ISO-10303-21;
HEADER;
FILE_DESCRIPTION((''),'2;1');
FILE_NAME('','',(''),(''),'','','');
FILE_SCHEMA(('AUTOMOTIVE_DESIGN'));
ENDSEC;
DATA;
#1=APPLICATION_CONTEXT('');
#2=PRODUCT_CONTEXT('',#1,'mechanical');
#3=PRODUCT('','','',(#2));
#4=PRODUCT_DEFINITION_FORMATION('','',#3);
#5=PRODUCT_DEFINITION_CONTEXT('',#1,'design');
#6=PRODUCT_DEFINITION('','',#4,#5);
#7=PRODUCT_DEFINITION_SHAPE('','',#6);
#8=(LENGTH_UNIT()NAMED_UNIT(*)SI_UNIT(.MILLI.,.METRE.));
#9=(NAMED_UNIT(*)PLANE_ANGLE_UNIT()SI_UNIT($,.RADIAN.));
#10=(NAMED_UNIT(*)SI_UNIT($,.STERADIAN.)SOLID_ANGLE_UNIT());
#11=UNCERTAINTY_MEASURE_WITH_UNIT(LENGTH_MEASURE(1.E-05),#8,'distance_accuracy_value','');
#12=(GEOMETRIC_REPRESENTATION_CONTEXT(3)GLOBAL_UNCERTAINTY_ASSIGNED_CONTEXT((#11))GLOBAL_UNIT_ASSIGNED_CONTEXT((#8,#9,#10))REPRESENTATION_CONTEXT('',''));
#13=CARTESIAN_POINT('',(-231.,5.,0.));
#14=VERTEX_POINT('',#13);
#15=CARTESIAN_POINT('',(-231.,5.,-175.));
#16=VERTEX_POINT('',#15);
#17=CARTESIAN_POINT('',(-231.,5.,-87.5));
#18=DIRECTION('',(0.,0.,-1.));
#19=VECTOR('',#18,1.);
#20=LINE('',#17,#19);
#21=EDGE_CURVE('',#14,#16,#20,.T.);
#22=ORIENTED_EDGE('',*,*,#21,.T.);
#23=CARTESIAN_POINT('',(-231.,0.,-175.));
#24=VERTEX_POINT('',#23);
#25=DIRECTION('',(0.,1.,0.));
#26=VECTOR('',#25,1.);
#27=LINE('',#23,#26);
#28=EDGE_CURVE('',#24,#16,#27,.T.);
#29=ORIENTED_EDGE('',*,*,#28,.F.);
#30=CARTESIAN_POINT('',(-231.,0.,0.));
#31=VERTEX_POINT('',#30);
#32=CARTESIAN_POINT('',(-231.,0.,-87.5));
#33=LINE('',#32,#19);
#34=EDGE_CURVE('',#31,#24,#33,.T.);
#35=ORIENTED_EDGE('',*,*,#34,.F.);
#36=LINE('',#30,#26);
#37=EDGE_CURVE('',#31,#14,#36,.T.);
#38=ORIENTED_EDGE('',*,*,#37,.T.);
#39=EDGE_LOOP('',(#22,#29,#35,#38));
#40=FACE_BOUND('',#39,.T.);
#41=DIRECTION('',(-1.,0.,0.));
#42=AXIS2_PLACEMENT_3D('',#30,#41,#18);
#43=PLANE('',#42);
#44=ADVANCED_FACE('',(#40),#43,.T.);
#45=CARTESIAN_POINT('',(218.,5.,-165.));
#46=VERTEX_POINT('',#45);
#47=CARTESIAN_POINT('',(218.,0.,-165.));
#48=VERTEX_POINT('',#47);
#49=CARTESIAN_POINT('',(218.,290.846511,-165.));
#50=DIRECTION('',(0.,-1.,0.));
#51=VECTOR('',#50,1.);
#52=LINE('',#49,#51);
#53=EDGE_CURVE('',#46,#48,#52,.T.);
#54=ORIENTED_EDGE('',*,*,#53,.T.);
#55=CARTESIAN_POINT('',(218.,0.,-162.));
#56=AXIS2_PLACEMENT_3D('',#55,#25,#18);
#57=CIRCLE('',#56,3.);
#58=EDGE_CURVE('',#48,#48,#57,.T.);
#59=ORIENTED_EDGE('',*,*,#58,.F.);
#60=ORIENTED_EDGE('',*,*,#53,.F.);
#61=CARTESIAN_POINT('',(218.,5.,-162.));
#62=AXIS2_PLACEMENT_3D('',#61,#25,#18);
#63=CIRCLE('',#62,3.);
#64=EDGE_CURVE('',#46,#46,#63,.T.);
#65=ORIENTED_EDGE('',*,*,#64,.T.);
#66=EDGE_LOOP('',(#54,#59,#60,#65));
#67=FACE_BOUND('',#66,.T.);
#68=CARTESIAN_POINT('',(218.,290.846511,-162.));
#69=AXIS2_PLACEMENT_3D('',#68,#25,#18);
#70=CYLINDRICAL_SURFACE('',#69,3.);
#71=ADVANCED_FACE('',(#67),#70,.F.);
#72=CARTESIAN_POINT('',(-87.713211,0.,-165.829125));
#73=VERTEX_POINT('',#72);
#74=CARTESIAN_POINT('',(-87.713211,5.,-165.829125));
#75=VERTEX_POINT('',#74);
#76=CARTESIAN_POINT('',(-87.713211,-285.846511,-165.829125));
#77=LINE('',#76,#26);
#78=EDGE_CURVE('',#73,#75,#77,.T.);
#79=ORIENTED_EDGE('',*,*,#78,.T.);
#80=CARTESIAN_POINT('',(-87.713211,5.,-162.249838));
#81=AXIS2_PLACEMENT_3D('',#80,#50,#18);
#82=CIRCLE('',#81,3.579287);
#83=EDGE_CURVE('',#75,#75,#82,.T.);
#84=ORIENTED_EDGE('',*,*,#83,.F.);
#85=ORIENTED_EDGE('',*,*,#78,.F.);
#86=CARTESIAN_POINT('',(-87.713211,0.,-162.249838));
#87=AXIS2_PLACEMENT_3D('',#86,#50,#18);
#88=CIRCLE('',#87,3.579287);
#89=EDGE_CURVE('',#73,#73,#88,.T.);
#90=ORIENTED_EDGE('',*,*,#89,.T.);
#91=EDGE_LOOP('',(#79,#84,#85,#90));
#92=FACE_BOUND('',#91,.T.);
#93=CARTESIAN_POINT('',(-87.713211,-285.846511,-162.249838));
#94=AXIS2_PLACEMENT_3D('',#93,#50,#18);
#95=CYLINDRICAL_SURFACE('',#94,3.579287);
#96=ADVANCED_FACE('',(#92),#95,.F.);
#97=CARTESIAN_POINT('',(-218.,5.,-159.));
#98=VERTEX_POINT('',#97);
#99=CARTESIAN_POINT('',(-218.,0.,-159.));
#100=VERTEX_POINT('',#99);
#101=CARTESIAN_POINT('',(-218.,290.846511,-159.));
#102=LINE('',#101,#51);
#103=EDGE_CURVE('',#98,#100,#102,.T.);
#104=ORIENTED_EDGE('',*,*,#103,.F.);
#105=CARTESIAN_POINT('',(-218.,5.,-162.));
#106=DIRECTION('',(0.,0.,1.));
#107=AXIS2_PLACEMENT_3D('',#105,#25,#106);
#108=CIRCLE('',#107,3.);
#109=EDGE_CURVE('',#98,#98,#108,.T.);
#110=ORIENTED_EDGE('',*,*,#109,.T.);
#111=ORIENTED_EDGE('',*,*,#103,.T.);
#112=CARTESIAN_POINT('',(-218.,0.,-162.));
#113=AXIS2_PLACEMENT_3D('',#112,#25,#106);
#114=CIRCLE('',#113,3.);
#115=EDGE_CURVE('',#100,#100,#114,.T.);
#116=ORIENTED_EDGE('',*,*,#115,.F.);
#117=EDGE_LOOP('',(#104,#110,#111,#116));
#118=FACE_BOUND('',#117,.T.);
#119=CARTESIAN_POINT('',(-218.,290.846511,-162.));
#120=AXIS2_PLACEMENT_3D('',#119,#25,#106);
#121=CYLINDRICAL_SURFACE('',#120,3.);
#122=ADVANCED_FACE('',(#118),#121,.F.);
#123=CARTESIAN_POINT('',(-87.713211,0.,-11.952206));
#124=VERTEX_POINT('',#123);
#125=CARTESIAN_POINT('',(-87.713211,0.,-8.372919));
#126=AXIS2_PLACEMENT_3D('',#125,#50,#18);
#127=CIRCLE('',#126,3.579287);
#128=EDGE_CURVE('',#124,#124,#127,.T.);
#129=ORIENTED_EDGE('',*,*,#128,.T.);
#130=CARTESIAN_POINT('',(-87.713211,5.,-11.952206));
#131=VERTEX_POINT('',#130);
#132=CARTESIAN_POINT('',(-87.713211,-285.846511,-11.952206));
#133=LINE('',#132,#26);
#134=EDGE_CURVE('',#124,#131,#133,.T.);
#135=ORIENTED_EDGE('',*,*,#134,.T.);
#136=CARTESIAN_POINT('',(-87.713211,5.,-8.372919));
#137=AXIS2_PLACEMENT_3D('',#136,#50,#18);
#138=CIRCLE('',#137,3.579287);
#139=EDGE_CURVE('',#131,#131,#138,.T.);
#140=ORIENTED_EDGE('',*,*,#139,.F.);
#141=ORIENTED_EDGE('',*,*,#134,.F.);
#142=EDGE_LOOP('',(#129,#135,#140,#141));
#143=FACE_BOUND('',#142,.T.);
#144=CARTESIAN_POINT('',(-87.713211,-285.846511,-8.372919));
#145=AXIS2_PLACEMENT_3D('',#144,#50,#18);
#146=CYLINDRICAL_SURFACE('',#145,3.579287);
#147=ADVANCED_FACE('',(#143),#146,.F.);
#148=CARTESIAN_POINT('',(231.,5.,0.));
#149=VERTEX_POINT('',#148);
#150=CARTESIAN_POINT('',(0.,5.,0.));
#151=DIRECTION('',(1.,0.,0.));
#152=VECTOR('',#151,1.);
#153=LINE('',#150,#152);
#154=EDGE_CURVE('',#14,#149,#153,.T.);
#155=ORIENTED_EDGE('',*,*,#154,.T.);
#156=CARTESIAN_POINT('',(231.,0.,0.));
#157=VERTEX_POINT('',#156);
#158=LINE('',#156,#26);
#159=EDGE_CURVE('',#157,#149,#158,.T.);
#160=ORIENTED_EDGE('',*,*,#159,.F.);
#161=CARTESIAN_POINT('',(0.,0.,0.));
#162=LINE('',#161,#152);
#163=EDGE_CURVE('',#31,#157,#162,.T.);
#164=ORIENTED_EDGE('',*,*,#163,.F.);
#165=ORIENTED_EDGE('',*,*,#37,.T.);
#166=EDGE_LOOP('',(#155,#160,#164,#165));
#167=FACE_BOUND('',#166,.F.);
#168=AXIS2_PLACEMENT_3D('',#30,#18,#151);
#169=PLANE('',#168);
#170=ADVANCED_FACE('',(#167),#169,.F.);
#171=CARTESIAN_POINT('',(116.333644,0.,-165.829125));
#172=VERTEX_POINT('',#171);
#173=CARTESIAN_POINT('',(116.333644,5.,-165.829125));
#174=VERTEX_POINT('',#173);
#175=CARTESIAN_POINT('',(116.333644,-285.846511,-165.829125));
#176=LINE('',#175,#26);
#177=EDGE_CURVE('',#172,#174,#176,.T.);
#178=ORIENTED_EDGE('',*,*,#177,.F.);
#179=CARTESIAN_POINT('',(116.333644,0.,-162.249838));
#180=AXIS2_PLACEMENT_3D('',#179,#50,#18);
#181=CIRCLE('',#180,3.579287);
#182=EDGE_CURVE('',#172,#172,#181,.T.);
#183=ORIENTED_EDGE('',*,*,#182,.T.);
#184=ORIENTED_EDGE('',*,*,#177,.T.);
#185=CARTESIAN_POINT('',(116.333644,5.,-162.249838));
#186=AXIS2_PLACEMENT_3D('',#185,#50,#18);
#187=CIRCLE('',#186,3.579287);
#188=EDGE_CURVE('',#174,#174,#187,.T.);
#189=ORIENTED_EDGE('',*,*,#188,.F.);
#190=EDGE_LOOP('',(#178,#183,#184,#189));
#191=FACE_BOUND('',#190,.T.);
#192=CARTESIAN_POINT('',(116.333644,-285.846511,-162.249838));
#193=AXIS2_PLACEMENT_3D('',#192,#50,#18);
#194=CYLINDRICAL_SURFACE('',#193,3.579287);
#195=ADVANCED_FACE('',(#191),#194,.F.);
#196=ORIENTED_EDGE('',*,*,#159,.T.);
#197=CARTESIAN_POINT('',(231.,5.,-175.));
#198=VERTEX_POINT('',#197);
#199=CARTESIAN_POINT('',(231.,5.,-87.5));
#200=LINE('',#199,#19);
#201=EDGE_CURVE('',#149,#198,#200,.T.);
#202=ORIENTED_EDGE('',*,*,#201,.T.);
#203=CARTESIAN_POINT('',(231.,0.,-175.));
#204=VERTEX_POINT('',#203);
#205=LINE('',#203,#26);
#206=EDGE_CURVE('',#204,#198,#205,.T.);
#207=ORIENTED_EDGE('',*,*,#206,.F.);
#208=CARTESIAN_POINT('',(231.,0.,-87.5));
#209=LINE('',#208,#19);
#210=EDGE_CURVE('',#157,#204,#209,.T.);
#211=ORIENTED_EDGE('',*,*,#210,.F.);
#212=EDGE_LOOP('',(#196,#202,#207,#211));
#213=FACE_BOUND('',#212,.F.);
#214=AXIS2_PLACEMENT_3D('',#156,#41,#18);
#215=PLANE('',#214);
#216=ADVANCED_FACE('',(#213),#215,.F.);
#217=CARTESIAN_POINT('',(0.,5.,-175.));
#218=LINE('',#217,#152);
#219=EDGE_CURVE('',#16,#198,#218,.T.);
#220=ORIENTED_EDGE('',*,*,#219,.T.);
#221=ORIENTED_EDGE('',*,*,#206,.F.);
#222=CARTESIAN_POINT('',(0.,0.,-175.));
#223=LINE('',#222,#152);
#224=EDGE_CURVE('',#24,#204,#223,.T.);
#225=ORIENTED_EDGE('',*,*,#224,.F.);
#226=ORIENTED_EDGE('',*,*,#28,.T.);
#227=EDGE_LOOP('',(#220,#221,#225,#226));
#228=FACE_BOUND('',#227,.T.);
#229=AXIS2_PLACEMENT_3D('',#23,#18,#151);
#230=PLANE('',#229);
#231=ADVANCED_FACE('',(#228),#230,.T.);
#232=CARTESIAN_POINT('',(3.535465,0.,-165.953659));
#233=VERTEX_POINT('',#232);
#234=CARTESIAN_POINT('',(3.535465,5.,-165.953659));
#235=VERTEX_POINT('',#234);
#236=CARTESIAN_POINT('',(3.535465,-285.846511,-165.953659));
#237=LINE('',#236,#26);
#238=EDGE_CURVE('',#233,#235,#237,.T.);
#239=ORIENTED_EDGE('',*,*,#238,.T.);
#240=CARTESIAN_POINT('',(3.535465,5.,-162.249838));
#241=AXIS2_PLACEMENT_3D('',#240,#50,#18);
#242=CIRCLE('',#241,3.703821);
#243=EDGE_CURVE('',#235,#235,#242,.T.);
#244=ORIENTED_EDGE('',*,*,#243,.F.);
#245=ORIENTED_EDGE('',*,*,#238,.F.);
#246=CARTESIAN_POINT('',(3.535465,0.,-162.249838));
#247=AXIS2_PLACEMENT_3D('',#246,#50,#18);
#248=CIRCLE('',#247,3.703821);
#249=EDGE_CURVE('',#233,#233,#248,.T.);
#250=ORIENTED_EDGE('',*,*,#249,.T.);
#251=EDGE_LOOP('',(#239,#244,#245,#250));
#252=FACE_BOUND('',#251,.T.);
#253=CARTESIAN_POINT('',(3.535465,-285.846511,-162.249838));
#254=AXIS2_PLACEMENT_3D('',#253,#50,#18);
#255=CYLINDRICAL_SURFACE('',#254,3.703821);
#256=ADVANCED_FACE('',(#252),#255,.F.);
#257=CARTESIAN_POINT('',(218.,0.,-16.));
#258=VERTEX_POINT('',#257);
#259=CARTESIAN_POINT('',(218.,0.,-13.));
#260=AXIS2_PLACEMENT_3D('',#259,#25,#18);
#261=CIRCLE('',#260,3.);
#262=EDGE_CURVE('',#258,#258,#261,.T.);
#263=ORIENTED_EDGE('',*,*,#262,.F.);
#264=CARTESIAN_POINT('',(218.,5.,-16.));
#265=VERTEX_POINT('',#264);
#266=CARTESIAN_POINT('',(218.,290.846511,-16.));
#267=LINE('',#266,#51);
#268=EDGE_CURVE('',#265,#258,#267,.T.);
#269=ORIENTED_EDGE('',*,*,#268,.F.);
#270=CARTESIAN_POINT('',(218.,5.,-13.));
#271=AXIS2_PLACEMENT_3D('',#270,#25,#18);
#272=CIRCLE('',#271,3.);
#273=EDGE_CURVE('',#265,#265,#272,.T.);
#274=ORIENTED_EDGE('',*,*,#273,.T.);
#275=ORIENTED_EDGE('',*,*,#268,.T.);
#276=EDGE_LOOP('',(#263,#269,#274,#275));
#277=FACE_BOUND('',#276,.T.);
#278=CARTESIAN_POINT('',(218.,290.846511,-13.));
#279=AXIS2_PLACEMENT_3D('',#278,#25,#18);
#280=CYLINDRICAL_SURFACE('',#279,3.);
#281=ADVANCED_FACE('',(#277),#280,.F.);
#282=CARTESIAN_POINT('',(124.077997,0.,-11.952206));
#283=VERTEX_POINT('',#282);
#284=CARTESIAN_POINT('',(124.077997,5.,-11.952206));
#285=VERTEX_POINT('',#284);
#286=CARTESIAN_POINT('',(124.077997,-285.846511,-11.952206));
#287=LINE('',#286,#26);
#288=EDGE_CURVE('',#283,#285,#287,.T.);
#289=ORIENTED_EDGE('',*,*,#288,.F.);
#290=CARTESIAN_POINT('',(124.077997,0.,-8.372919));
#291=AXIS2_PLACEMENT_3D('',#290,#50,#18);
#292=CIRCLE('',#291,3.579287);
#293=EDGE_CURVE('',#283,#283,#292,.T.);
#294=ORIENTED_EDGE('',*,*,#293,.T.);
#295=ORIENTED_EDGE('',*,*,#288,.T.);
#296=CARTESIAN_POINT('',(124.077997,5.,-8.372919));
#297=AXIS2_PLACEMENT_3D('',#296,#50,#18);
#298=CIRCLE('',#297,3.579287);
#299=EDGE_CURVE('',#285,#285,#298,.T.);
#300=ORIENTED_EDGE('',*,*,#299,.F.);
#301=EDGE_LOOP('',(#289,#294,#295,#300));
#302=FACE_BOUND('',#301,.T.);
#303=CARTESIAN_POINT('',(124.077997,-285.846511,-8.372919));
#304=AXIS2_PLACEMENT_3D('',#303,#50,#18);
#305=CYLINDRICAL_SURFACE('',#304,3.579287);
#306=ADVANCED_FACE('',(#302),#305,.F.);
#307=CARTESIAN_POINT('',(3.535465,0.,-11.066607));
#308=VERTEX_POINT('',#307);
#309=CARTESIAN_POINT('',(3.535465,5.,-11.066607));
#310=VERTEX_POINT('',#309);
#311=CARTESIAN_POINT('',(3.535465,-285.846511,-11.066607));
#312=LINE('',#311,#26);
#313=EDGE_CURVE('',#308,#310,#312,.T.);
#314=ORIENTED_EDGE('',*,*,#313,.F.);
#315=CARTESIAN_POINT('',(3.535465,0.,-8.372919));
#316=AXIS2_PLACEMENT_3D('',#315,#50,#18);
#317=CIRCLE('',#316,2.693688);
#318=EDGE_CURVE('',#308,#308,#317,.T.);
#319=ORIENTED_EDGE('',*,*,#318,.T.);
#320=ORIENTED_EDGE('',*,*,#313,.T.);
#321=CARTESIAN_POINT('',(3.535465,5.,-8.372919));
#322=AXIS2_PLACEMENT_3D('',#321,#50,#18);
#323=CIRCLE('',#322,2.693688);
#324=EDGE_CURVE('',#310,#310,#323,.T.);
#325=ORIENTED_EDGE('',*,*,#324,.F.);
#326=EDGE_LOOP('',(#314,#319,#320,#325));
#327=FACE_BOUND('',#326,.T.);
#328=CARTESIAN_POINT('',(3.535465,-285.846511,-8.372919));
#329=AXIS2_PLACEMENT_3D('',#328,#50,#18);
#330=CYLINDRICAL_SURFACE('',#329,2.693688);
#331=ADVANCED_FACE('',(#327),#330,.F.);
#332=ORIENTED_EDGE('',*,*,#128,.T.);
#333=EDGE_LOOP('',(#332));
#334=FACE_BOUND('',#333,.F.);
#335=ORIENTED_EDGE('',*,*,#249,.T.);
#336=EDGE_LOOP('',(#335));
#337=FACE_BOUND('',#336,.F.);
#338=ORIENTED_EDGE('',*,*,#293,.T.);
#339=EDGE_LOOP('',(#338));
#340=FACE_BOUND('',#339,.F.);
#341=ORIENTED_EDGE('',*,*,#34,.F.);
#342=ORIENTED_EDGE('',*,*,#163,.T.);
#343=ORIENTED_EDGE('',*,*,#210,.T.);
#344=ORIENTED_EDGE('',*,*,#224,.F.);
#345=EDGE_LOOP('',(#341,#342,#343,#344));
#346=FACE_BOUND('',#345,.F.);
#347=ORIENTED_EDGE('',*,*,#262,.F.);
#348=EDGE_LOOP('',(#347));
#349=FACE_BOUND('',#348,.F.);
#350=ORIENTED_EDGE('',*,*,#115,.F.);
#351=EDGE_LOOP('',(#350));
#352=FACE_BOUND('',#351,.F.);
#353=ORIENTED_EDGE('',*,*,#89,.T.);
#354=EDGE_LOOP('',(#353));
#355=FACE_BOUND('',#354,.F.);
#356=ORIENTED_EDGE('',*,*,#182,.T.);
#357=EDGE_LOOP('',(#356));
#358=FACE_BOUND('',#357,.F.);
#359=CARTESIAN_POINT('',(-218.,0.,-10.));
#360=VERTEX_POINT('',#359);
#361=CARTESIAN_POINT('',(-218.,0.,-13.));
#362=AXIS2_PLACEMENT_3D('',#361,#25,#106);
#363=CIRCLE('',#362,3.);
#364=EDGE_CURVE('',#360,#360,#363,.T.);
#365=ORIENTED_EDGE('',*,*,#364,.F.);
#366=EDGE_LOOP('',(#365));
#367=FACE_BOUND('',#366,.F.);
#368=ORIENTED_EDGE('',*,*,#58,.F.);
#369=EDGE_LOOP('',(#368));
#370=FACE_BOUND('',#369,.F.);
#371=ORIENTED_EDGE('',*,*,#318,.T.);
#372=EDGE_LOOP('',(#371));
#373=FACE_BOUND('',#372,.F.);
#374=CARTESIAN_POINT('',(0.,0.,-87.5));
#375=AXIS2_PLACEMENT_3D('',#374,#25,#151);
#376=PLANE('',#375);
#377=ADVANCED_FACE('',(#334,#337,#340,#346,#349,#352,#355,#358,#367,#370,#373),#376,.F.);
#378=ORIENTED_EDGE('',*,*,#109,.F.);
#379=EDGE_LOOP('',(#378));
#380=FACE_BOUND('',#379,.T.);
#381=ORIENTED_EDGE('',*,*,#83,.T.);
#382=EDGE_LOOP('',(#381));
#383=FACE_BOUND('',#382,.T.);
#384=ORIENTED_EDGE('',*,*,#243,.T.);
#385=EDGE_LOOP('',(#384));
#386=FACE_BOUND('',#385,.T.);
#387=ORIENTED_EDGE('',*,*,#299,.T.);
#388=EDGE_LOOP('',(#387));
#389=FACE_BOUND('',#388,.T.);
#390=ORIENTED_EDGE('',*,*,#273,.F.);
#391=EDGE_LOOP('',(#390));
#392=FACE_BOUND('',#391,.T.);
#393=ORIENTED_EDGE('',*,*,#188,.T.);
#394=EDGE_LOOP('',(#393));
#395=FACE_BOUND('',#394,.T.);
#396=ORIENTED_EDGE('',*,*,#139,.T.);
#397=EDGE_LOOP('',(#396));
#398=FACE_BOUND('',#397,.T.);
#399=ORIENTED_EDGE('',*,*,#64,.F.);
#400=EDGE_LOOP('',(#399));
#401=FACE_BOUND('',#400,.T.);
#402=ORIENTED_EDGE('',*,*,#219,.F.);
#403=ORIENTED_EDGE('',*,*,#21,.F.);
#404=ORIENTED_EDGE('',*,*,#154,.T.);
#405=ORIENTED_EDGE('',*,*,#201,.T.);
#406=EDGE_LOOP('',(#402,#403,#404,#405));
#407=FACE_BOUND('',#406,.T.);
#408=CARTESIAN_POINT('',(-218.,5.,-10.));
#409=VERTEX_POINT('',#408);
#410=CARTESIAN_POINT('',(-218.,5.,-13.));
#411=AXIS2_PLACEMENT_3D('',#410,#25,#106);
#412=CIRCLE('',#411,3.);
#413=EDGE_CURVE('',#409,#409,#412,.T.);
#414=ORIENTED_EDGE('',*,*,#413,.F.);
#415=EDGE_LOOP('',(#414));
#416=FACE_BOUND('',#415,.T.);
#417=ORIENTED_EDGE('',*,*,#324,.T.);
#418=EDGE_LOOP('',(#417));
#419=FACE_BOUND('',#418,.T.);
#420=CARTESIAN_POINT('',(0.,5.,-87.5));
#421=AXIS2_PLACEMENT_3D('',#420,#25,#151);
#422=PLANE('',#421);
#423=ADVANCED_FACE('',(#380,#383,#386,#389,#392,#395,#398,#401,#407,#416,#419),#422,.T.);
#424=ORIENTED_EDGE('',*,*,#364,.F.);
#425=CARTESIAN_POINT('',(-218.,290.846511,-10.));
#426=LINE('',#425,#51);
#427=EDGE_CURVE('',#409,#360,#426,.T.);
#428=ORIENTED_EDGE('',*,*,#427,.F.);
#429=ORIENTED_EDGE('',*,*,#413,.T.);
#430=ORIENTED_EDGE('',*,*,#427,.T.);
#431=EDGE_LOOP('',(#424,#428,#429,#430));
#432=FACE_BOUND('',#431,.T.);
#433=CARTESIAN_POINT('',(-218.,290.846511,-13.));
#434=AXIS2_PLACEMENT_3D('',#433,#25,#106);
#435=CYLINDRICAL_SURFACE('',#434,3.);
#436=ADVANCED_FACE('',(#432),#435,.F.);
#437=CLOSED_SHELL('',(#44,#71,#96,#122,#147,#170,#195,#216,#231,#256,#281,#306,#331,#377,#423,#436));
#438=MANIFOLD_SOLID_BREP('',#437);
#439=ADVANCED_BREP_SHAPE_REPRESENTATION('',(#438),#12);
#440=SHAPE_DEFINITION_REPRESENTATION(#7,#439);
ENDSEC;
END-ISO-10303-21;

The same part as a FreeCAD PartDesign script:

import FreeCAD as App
import Part
import Sketcher

V = App.Vector

doc = App.newDocument("Part")
body = doc.addObject("PartDesign::Body", "Body")

# Sketch on XZ plane
sketch1 = body.newObject("Sketcher::SketchObject", "Sketch")
sketch1.AttachmentSupport = (doc.getObject("XZ_Plane"), [""])
sketch1.MapMode = "FlatFace"
sketch1.addGeometry(Part.LineSegment(V(-231, -175, 0), V(-231, 0, 0)), False)
sketch1.addGeometry(Part.LineSegment(V(-231, 0, 0), V(231, 0, 0)), False)
sketch1.addGeometry(Part.LineSegment(V(231, 0, 0), V(231, -175, 0)), False)
sketch1.addGeometry(Part.LineSegment(V(231, -175, 0), V(-231, -175, 0)), False)
sketch1.addConstraint(Sketcher.Constraint("Coincident", 0, 2, 1, 1))
sketch1.addConstraint(Sketcher.Constraint("Coincident", 1, 2, 2, 1))
sketch1.addConstraint(Sketcher.Constraint("Coincident", 2, 2, 3, 1))
sketch1.addConstraint(Sketcher.Constraint("Coincident", 3, 2, 0, 1))
sketch1.addConstraint(Sketcher.Constraint("Vertical", 0))
sketch1.addConstraint(Sketcher.Constraint("Horizontal", 1))
sketch1.addConstraint(Sketcher.Constraint("Vertical", 2))
sketch1.addConstraint(Sketcher.Constraint("Horizontal", 3))
sketch1.addConstraint(Sketcher.Constraint("Symmetric", 0, 2, 1, 2, -1, 1))
sketch1.addConstraint(Sketcher.Constraint("DistanceX", 1, 1, 1, 2, 462.0))
sketch1.addConstraint(Sketcher.Constraint("DistanceY", 0, 1, 0, 2, 175.0))
pad1 = body.newObject("PartDesign::Pad", "Pad")
pad1.Profile = sketch1
pad1.Length = 5
pad1.Reversed = True

# Sketch on XZ plane
sketch2 = body.newObject("Sketcher::SketchObject", "Sketch001")
sketch2.AttachmentSupport = (doc.getObject("XZ_Plane"), [""])
sketch2.MapMode = "FlatFace"
sketch2.addGeometry(Part.Circle(V(218, -162, 0), V(0, 0, 1), 3), False)
sketch2.addGeometry(Part.Circle(V(218, -13, 0), V(0, 0, 1), 3), False)
sketch2.addGeometry(Part.Circle(V(-218, -13, 0), V(0, 0, 1), 3), False)
sketch2.addGeometry(Part.Circle(V(-218, -162, 0), V(0, 0, 1), 3), False)
sketch2.addConstraint(Sketcher.Constraint("Equal", 0, 1))
sketch2.addConstraint(Sketcher.Constraint("Equal", 1, 2))
sketch2.addConstraint(Sketcher.Constraint("Equal", 2, 3))
sketch2.addConstraint(Sketcher.Constraint("Symmetric", 1, 3, 2, 3, -2))
sketch2.addConstraint(Sketcher.Constraint("Symmetric", 0, 3, 3, 3, -2))
sketch2.addConstraint(Sketcher.Constraint("Vertical", 0, 3, 1, 3))
sketch2.addConstraint(Sketcher.Constraint("Diameter", 0, 6.0))
sketch2.addConstraint(Sketcher.Constraint("DistanceX", -1, 1, 0, 3, 218.0))
sketch2.addConstraint(Sketcher.Constraint("DistanceY", 0, 3, -1, 1, 162.0))
sketch2.addConstraint(Sketcher.Constraint("DistanceY", 1, 3, -1, 1, 13.0))
pocket1 = body.newObject("PartDesign::Pocket", "Pocket")
pocket1.Profile = sketch2
pocket1.Type = "ThroughAll"
pocket1.Midplane = True

# Sketch on XZ plane
sketch3 = body.newObject("Sketcher::SketchObject", "Sketch002")
sketch3.AttachmentSupport = (doc.getObject("XZ_Plane"), [""])
sketch3.MapMode = "FlatFace"
sketch3.AttachmentOffset = App.Placement(V(0, 0, -5), App.Rotation())
sketch3.addGeometry(Part.Circle(V(-87.7, -162.2, 0), V(0, 0, 1), 3.6), False)
sketch3.addGeometry(Part.Circle(V(-87.7, -8.4, 0), V(0, 0, 1), 3.6), False)
sketch3.addGeometry(Part.Circle(V(116.3, -162.2, 0), V(0, 0, 1), 3.6), False)
sketch3.addGeometry(Part.Circle(V(124.1, -8.4, 0), V(0, 0, 1), 3.6), False)
sketch3.addGeometry(Part.Circle(V(3.5, -162.2, 0), V(0, 0, 1), 3.7), False)
sketch3.addGeometry(Part.Circle(V(3.5, -8.4, 0), V(0, 0, 1), 2.7), False)
sketch3.addConstraint(Sketcher.Constraint("Equal", 0, 1))
sketch3.addConstraint(Sketcher.Constraint("Equal", 1, 2))
sketch3.addConstraint(Sketcher.Constraint("Equal", 2, 3))
sketch3.addConstraint(Sketcher.Constraint("Horizontal", 0, 3, 2, 3))
sketch3.addConstraint(Sketcher.Constraint("Horizontal", 1, 3, 3, 3))
sketch3.addConstraint(Sketcher.Constraint("Horizontal", 2, 3, 4, 3))
sketch3.addConstraint(Sketcher.Constraint("Horizontal", 3, 3, 5, 3))
sketch3.addConstraint(Sketcher.Constraint("Vertical", 0, 3, 1, 3))
sketch3.addConstraint(Sketcher.Constraint("Vertical", 4, 3, 5, 3))
sketch3.addConstraint(Sketcher.Constraint("Diameter", 4, 7.407642))
sketch3.addConstraint(Sketcher.Constraint("Diameter", 0, 7.158574))
sketch3.addConstraint(Sketcher.Constraint("Diameter", 5, 5.387376))
sketch3.addConstraint(Sketcher.Constraint("DistanceX", 0, 3, -1, 1, 87.713211))
sketch3.addConstraint(Sketcher.Constraint("DistanceY", 1, 3, -1, 1, 8.372919))
sketch3.addConstraint(Sketcher.Constraint("DistanceY", 0, 3, 1, 3, 153.876919))
sketch3.addConstraint(Sketcher.Constraint("DistanceX", 4, 3, 2, 3, 112.798179))
sketch3.addConstraint(Sketcher.Constraint("DistanceX", 4, 3, 3, 3, 120.542531))
sketch3.addConstraint(Sketcher.Constraint("DistanceX", -1, 1, 2, 3, 116.333644))
pocket2 = body.newObject("PartDesign::Pocket", "Pocket001")
pocket2.Profile = sketch3
pocket2.Type = "ThroughAll"
pocket2.Midplane = True

doc.recompute()
